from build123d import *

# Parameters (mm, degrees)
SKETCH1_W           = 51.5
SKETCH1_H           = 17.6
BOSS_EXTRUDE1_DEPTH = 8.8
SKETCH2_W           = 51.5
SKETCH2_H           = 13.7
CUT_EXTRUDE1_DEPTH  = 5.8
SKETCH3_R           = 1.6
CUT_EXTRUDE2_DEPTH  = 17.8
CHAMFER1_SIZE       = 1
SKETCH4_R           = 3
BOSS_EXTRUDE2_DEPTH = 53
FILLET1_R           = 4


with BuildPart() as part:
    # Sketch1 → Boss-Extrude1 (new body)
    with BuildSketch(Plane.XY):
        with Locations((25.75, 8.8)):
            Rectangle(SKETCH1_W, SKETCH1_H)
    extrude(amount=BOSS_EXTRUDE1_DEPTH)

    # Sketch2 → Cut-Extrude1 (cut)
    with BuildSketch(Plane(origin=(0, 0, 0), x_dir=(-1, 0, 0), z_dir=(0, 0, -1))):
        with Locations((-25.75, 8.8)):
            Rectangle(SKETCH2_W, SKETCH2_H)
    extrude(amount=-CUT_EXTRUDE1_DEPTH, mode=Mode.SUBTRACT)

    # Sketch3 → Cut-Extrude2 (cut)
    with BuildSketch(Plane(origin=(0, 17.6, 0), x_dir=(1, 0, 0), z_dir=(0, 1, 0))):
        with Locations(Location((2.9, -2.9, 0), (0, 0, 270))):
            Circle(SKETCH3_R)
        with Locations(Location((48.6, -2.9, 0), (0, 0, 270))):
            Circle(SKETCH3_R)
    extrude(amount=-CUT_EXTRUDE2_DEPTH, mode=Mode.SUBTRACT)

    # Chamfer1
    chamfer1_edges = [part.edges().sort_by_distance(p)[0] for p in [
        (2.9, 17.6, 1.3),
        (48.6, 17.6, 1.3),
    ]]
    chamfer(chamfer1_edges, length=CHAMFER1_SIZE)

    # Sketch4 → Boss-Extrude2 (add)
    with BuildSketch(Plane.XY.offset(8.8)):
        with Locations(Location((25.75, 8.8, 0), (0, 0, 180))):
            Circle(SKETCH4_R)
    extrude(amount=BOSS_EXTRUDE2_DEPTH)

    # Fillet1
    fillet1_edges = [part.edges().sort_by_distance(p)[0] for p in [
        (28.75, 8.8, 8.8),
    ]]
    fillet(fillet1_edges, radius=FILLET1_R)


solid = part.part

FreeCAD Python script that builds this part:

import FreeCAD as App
import Part
import Sketcher
from FreeCAD import Vector
Q = App.Units.Quantity


def edges_at(feature, points):
    """Names of the edges that pass closest to the given points."""
    edges = feature.Shape.Edges
    near = lambda p: min(range(len(edges)), key=lambda i: edges[i].distToShape(Part.Vertex(*p))[0])
    return sorted({f"Edge{near(p) + 1}" for p in points})

doc = App.newDocument("Part")
body = doc.addObject("PartDesign::Body", "Body")

# Sketch on XY plane
sketch1 = doc.addObject("Sketcher::SketchObject", "Sketch")
body.addObject(sketch1)
sketch1.AttachmentSupport = (doc.XY_Plane, [""])
sketch1.MapMode = "FlatFace"
sketch1.addGeometry([
    Part.LineSegment(Vector(0, 18, 0), Vector(0, 0, 0)),
    Part.LineSegment(Vector(0, 0, 0), Vector(52, 0, 0)),
    Part.LineSegment(Vector(52, 0, 0), Vector(52, 18, 0)),
    Part.LineSegment(Vector(52, 18, 0), Vector(0, 18, 0)),
], False)
sketch1.addConstraint([
    Sketcher.Constraint("Coincident", 0, 2, 1, 1),
    Sketcher.Constraint("Coincident", 1, 2, 2, 1),
    Sketcher.Constraint("Coincident", 2, 2, 3, 1),
    Sketcher.Constraint("Coincident", 3, 2, 0, 1),
    Sketcher.Constraint("Vertical", 0),
    Sketcher.Constraint("Horizontal", 1),
    Sketcher.Constraint("Vertical", 2),
    Sketcher.Constraint("Horizontal", 3),
    Sketcher.Constraint("Coincident", 0, 2, -1, 1),
    Sketcher.Constraint("DistanceX", 1, 1, 1, 2, Q("51.5 mm")),
    Sketcher.Constraint("DistanceY", 0, 2, 0, 1, Q("17.6 mm")),
])
pad1 = doc.addObject("PartDesign::Pad", "Pad")
body.addObject(pad1)
pad1.Profile = sketch1
pad1.Length = 8.8

# Sketch on XY plane
sketch2 = doc.addObject("Sketcher::SketchObject", "Sketch001")
body.addObject(sketch2)
sketch2.AttachmentSupport = (doc.XY_Plane, [""])
sketch2.MapMode = "FlatFace"
sketch2.addGeometry([
    Part.LineSegment(Vector(52, 16, 0), Vector(52, 2, 0)),
    Part.LineSegment(Vector(52, 2, 0), Vector(0, 2, 0)),
    Part.LineSegment(Vector(0, 2, 0), Vector(0, 16, 0)),
    Part.LineSegment(Vector(0, 16, 0), Vector(52, 16, 0)),
], False)
sketch2.addConstraint([
    Sketcher.Constraint("Coincident", 0, 2, 1, 1),
    Sketcher.Constraint("Coincident", 1, 2, 2, 1),
    Sketcher.Constraint("Coincident", 2, 2, 3, 1),
    Sketcher.Constraint("Coincident", 3, 2, 0, 1),
    Sketcher.Constraint("Vertical", 0),
    Sketcher.Constraint("Horizontal", 1),
    Sketcher.Constraint("Vertical", 2),
    Sketcher.Constraint("Horizontal", 3),
    Sketcher.Constraint("PointOnObject", 1, 2, -2),
    Sketcher.Constraint("DistanceX", 1, 2, 1, 1, Q("51.5 mm")),
    Sketcher.Constraint("DistanceY", 0, 2, 0, 1, Q("13.7 mm")),
    Sketcher.Constraint("DistanceY", -1, 1, 0, 2, Q("1.95 mm")),
])
pocket1 = doc.addObject("PartDesign::Pocket", "Pocket")
body.addObject(pocket1)
pocket1.Profile = sketch2
pocket1.Length = 5.8
pocket1.Reversed = True

# Sketch on XZ plane
sketch3 = doc.addObject("Sketcher::SketchObject", "Sketch002")
body.addObject(sketch3)
sketch3.AttachmentSupport = (doc.XZ_Plane, [""])
sketch3.MapMode = "FlatFace"
sketch3.AttachmentOffset = App.Placement(Vector(0, 0, -17.6), App.Rotation())
sketch3.addGeometry([
    Part.Circle(Vector(2.9, 2.9, 0), Vector(0, 0, 1), 1.6),
    Part.Circle(Vector(48.6, 2.9, 0), Vector(0, 0, 1), 1.6),
], False)
sketch3.addConstraint([
    Sketcher.Constraint("Equal", 0, 1),
    Sketcher.Constraint("Horizontal", 0, 3, 1, 3),
    Sketcher.Constraint("Diameter", 0, Q("3.2 mm")),
    Sketcher.Constraint("DistanceX", -1, 1, 0, 3, Q("2.9 mm")),
    Sketcher.Constraint("DistanceY", -1, 1, 0, 3, Q("2.9 mm")),
    Sketcher.Constraint("DistanceX", -1, 1, 1, 3, Q("48.6 mm")),
])
pocket2 = doc.addObject("PartDesign::Pocket", "Pocket001")
body.addObject(pocket2)
pocket2.Profile = sketch3
pocket2.Length = 17.8
pocket2.Reversed = True
doc.recompute()

chamfer = doc.addObject("PartDesign::Chamfer", "Chamfer")
body.addObject(chamfer)
chamfer.Base = (pocket2, edges_at(pocket2, [(2.9, 17.6, 1.3), (48.6, 17.6, 1.3)]))
chamfer.Size = 1

# Sketch on XY plane
sketch4 = doc.addObject("Sketcher::SketchObject", "Sketch003")
body.addObject(sketch4)
sketch4.AttachmentSupport = (doc.XY_Plane, [""])
sketch4.MapMode = "FlatFace"
sketch4.AttachmentOffset = App.Placement(Vector(0, 0, 8.8), App.Rotation())
sketch4.addGeometry(Part.Circle(Vector(25.8, 8.8, 0), Vector(0, 0, 1), 3), False)
sketch4.addConstraint([
    Sketcher.Constraint("Diameter", 0, Q("6 mm")),
    Sketcher.Constraint("DistanceY", -1, 1, 0, 3, Q("8.8 mm")),
    Sketcher.Constraint("DistanceX", -1, 1, 0, 3, Q("25.75 mm")),
])
pad2 = doc.addObject("PartDesign::Pad", "Pad001")
body.addObject(pad2)
pad2.Profile = sketch4
pad2.Length = 53
doc.recompute()

fillet = doc.addObject("PartDesign::Fillet", "Fillet")
body.addObject(fillet)
fillet.Base = (pad2, edges_at(pad2, [(28.75, 8.8, 8.8)]))
fillet.Radius = 4

doc.recompute()
